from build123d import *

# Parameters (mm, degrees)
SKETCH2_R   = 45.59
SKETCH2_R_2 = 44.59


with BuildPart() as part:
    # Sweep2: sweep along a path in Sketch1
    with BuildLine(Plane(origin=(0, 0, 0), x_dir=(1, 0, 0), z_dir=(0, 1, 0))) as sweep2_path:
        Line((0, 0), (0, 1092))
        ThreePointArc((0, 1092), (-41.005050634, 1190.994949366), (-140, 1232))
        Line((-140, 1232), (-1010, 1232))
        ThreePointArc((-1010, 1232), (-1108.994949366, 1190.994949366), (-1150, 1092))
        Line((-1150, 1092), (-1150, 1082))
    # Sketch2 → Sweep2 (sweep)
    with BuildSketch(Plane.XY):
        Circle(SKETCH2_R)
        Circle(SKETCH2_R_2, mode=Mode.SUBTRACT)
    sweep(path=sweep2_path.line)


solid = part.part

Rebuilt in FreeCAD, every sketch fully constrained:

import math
import FreeCAD as App
import Part
import Sketcher
from FreeCAD import Vector
Q = App.Units.Quantity

doc = App.newDocument("Part")
body = doc.addObject("PartDesign::Body", "Body")

# Sketch on XY plane
sketch1 = doc.addObject("Sketcher::SketchObject", "Sketch")
body.addObject(sketch1)
sketch1.AttachmentSupport = (doc.XY_Plane, [""])
sketch1.MapMode = "FlatFace"
sketch1.addGeometry([
    Part.Circle(Vector(0, 0, 0), Vector(0, 0, 1), 46),
    Part.Circle(Vector(0, 0, 0), Vector(0, 0, 1), 45),
], False)
sketch1.addConstraint([
    Sketcher.Constraint("Coincident", 0, 3, -1, 1),
    Sketcher.Constraint("Coincident", 1, 3, -1, 1),
    Sketcher.Constraint("Diameter", 0, Q("91.18 mm")),
    Sketcher.Constraint("Diameter", 1, Q("89.18 mm")),
])

# Sketch on XZ plane
sketch2 = doc.addObject("Sketcher::SketchObject", "Sketch001")
body.addObject(sketch2)
sketch2.AttachmentSupport = (doc.XZ_Plane, [""])
sketch2.MapMode = "FlatFace"
sketch2.addGeometry([
    Part.LineSegment(Vector(0, 0, 0), Vector(0, -1092, 0)),  # 0
    Part.ArcOfCircle(Part.Circle(Vector(-140, -1092, 0), Vector(0, 0, 1), 140), math.radians(-90), math.radians(0)),  # 1
    Part.LineSegment(Vector(-140, -1232, 0), Vector(-1010, -1232, 0)),  # 2
    Part.ArcOfCircle(Part.Circle(Vector(-1010, -1092, 0), Vector(0, 0, 1), 140), math.radians(180), math.radians(270)),  # 3
    Part.LineSegment(Vector(-1150, -1092, 0), Vector(-1150, -1082, 0)),  # 4
], False)
sketch2.addConstraint([
    Sketcher.Constraint("Tangent", 0, 2, 1, 2),
    Sketcher.Constraint("Tangent", 1, 1, 2, 1),
    Sketcher.Constraint("Tangent", 2, 2, 3, 2),
    Sketcher.Constraint("Tangent", 3, 1, 4, 1),
    Sketcher.Constraint("Vertical", 0),
    Sketcher.Constraint("Horizontal", 2),
    Sketcher.Constraint("Vertical", 4),
    Sketcher.Constraint("Coincident", 0, 1, -1, 1),
    Sketcher.Constraint("Equal", 1, 3),
    Sketcher.Constraint("Radius", 1, Q("140 mm")),
    Sketcher.Constraint("DistanceX", 2, 2, 2, 1, Q("870 mm")),
    Sketcher.Constraint("DistanceY", 0, 2, 0, 1, Q("1092 mm")),
    Sketcher.Constraint("DistanceY", 4, 1, 4, 2, Q("10 mm")),
])
doc.recompute()

additivepipe = doc.addObject("PartDesign::AdditivePipe", "AdditivePipe")
body.addObject(additivepipe)
additivepipe.Profile = sketch1
additivepipe.Spine = (sketch2, ["Edge1", "Edge2", "Edge3", "Edge4", "Edge5"])

doc.recompute()
